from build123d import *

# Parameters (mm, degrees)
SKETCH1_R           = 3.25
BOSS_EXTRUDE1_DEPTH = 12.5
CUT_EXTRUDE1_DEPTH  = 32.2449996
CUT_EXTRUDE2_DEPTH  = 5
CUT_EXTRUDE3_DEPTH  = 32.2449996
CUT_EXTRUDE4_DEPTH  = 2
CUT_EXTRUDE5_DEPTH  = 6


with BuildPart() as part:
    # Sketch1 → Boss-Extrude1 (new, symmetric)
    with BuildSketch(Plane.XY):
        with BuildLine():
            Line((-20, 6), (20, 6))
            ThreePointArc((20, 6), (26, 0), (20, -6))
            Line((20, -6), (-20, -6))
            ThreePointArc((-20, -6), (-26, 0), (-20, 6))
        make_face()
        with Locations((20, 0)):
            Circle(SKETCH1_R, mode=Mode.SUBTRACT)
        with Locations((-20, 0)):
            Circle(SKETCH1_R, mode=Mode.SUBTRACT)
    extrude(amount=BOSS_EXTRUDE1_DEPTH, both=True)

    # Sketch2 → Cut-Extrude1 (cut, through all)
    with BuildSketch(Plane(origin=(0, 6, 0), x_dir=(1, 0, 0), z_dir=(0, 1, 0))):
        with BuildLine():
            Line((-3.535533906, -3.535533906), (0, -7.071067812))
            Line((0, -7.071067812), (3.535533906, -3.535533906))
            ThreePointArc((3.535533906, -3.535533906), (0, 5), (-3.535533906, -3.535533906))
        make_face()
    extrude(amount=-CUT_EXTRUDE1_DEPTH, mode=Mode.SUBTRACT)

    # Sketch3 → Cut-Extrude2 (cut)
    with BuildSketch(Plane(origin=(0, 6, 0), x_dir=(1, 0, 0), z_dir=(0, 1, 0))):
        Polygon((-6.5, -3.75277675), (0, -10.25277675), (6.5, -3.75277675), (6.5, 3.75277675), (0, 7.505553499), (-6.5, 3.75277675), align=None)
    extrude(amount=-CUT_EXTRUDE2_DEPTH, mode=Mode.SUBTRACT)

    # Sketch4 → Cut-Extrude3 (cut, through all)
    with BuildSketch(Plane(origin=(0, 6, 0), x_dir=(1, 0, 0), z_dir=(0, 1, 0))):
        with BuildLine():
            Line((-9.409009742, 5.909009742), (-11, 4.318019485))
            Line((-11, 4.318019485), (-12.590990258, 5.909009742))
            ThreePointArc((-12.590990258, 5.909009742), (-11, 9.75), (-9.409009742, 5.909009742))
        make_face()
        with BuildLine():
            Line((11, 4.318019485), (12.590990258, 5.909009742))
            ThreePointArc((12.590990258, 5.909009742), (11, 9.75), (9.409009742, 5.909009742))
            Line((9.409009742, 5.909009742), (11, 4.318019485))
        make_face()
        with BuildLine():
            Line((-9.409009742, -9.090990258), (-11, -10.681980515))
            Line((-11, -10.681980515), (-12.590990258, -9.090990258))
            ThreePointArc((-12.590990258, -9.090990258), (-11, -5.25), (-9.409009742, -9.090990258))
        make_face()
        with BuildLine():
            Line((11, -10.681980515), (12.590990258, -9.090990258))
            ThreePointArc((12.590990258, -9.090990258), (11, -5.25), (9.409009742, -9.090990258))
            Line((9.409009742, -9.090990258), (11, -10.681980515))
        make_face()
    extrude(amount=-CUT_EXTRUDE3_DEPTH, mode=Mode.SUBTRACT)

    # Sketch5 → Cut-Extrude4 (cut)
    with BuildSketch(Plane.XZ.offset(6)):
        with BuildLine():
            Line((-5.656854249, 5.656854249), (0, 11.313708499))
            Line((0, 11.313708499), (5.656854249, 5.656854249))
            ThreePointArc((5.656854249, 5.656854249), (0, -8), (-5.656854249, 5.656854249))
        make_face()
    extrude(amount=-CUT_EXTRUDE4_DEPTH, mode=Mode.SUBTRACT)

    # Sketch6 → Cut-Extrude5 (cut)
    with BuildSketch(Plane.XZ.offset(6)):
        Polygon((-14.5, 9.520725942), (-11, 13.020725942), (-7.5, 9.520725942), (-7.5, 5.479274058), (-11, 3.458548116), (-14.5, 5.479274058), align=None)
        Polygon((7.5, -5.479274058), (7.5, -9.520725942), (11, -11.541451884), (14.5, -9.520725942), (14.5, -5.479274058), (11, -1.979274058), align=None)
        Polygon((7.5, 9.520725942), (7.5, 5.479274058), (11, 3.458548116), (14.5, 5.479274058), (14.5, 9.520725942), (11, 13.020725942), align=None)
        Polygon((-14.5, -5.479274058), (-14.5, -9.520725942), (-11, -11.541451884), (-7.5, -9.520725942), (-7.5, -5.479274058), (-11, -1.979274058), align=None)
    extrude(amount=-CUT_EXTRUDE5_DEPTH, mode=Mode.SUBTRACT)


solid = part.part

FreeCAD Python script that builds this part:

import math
import FreeCAD as App
import Part
import Sketcher
from FreeCAD import Vector
Q = App.Units.Quantity

doc = App.newDocument("Part")
body = doc.addObject("PartDesign::Body", "Body")

# Sketch on XY plane
sketch1 = body.newObject("Sketcher::SketchObject", "Sketch")
sketch1.AttachmentSupport = (doc.getObject("XY_Plane"), [""])
sketch1.MapMode = "FlatFace"
sketch1.addGeometry(Part.LineSegment(Vector(20, 6, 0), Vector(-20, 6, 0)), False)
sketch1.addGeometry(Part.ArcOfCircle(Part.Circle(Vector(-20, 0, 0), Vector(0, 0, 1), 6), math.radians(90), math.radians(270)), False)
sketch1.addGeometry(Part.LineSegment(Vector(-20, -6, 0), Vector(20, -6, 0)), False)
sketch1.addGeometry(Part.ArcOfCircle(Part.Circle(Vector(20, 0, 0), Vector(0, 0, 1), 6), math.radians(-90), math.radians(90)), False)
sketch1.addGeometry(Part.Circle(Vector(20, 0, 0), Vector(0, 0, 1), 3.25), False)
sketch1.addGeometry(Part.Circle(Vector(-20, 0, 0), Vector(0, 0, 1), 3.25), False)
sketch1.addConstraint(Sketcher.Constraint("Tangent", 0, 2, 1, 1))
sketch1.addConstraint(Sketcher.Constraint("Tangent", 1, 2, 2, 1))
sketch1.addConstraint(Sketcher.Constraint("Tangent", 2, 2, 3, 1))
sketch1.addConstraint(Sketcher.Constraint("Tangent", 3, 2, 0, 1))
sketch1.addConstraint(Sketcher.Constraint("Horizontal", 0))
sketch1.addConstraint(Sketcher.Constraint("Horizontal", 2))
sketch1.addConstraint(Sketcher.Constraint("Coincident", 4, 3, 3, 3))
sketch1.addConstraint(Sketcher.Constraint("Coincident", 5, 3, 1, 3))
sketch1.addConstraint(Sketcher.Constraint("Equal", 4, 5))
sketch1.addConstraint(Sketcher.Constraint("Symmetric", 1, 3, 3, 3, -1, 1))
sketch1.addConstraint(Sketcher.Constraint("Radius", 1, 6.0))
sketch1.addConstraint(Sketcher.Constraint("Diameter", 4, 6.5))
sketch1.addConstraint(Sketcher.Constraint("DistanceX", 0, 2, 0, 1, 40.0))
pad1 = body.newObject("PartDesign::Pad", "Pad")
pad1.Profile = sketch1
pad1.Length = 25
pad1.Midplane = True

# Sketch on XZ plane
sketch2 = body.newObject("Sketcher::SketchObject", "Sketch001")
sketch2.AttachmentSupport = (doc.getObject("XZ_Plane"), [""])
sketch2.MapMode = "FlatFace"
sketch2.AttachmentOffset = App.Placement(Vector(0, 0, -6), App.Rotation())
sketch2.addGeometry(Part.LineSegment(Vector(-3.535534, 3.535534, 0), Vector(0, 7.071068, 0)), False)
sketch2.addGeometry(Part.LineSegment(Vector(0, 7.071068, 0), Vector(3.535534, 3.535534, 0)), False)
sketch2.addGeometry(Part.ArcOfCircle(Part.Circle(Vector(0, 0, 0), Vector(0, 0, 1), 5), math.radians(135), math.radians(405)), False)
sketch2.addConstraint(Sketcher.Constraint("Coincident", 0, 2, 1, 1))
sketch2.addConstraint(Sketcher.Constraint("Tangent", 1, 2, 2, 2))
sketch2.addConstraint(Sketcher.Constraint("Tangent", 2, 1, 0, 1))
sketch2.addConstraint(Sketcher.Constraint("Coincident", 2, 3, -1, 1))
sketch2.addConstraint(Sketcher.Constraint("PointOnObject", 0, 2, -2))
sketch2.addConstraint(Sketcher.Constraint("Perpendicular", 0, 1))
sketch2.addConstraint(Sketcher.Constraint("Radius", 2, 5.0))
pocket1 = body.newObject("PartDesign::Pocket", "Pocket")
pocket1.Profile = sketch2
pocket1.Type = "ThroughAll"
pocket1.Reversed = True

# Sketch on XZ plane
sketch3 = body.newObject("Sketcher::SketchObject", "Sketch002")
sketch3.AttachmentSupport = (doc.getObject("XZ_Plane"), [""])
sketch3.MapMode = "FlatFace"
sketch3.AttachmentOffset = App.Placement(Vector(0, 0, -6), App.Rotation())
sketch3.addGeometry(Part.LineSegment(Vector(-6.5, 3.752777, 0), Vector(0, 10.252777, 0)), False)
sketch3.addGeometry(Part.LineSegment(Vector(0, 10.252777, 0), Vector(6.5, 3.752777, 0)), False)
sketch3.addGeometry(Part.LineSegment(Vector(6.5, 3.752777, 0), Vector(6.5, -3.752777, 0)), False)
sketch3.addGeometry(Part.LineSegment(Vector(6.5, -3.752777, 0), Vector(0, -7.505553, 0)), False)
sketch3.addGeometry(Part.LineSegment(Vector(0, -7.505553, 0), Vector(-6.5, -3.752777, 0)), False)
sketch3.addGeometry(Part.LineSegment(Vector(-6.5, -3.752777, 0), Vector(-6.5, 3.752777, 0)), False)
sketch3.addConstraint(Sketcher.Constraint("Coincident", 0, 2, 1, 1))
sketch3.addConstraint(Sketcher.Constraint("Coincident", 1, 2, 2, 1))
sketch3.addConstraint(Sketcher.Constraint("Coincident", 2, 2, 3, 1))
sketch3.addConstraint(Sketcher.Constraint("Coincident", 3, 2, 4, 1))
sketch3.addConstraint(Sketcher.Constraint("Coincident", 4, 2, 5, 1))
sketch3.addConstraint(Sketcher.Constraint("Coincident", 5, 2, 0, 1))
sketch3.addConstraint(Sketcher.Constraint("Vertical", 2))
sketch3.addConstraint(Sketcher.Constraint("Vertical", 5))
sketch3.addConstraint(Sketcher.Constraint("Symmetric", 1, 2, 4, 2, -1, 1))
sketch3.addConstraint(Sketcher.Constraint("PointOnObject", 0, 2, -2))
sketch3.addConstraint(Sketcher.Constraint("PointOnObject", 3, 2, -2))
sketch3.addConstraint(Sketcher.Constraint("Perpendicular", 0, 1))
sketch3.addConstraint(Sketcher.Constraint("Horizontal", 2, 2, 4, 2))
sketch3.addConstraint(Sketcher.Constraint("Horizontal", 1, 2, 5, 2))
sketch3.addConstraint(Sketcher.Constraint("Angle", 3, Q("-150 deg")))
sketch3.addConstraint(Sketcher.Constraint("DistanceX", 4, 2, 2, 2, 13.0))
sketch3.addConstraint(Sketcher.Constraint("DistanceY", 2, 2, 2, 1, 7.505554))
pocket2 = body.newObject("PartDesign::Pocket", "Pocket001")
pocket2.Profile = sketch3
pocket2.Length = 5
pocket2.Reversed = True

# Sketch on XZ plane
sketch4 = body.newObject("Sketcher::SketchObject", "Sketch003")
sketch4.AttachmentSupport = (doc.getObject("XZ_Plane"), [""])
sketch4.MapMode = "FlatFace"
sketch4.AttachmentOffset = App.Placement(Vector(0, 0, -6), App.Rotation())
sketch4.addGeometry(Part.LineSegment(Vector(-11, -4.318019, 0), Vector(-9.40901, -5.90901, 0)), False)
sketch4.addGeometry(Part.ArcOfCircle(Part.Circle(Vector(-11, -7.5, 0), Vector(0, 0, 1), 2.25), math.radians(135), math.radians(405)), False)
sketch4.addGeometry(Part.LineSegment(Vector(-12.59099, -5.90901, 0), Vector(-11, -4.318019, 0)), False)
sketch4.addGeometry(Part.LineSegment(Vector(11, -4.318019, 0), Vector(12.59099, -5.90901, 0)), False)
sketch4.addGeometry(Part.ArcOfCircle(Part.Circle(Vector(11, -7.5, 0), Vector(0, 0, 1), 2.25), math.radians(135), math.radians(405)), False)
sketch4.addGeometry(Part.LineSegment(Vector(9.40901, -5.90901, 0), Vector(11, -4.318019, 0)), False)
sketch4.addGeometry(Part.LineSegment(Vector(-11, 10.681981, 0), Vector(-9.40901, 9.09099, 0)), False)
sketch4.addGeometry(Part.ArcOfCircle(Part.Circle(Vector(-11, 7.5, 0), Vector(0, 0, 1), 2.25), math.radians(135), math.radians(405)), False)
sketch4.addGeometry(Part.LineSegment(Vector(-12.59099, 9.09099, 0), Vector(-11, 10.681981, 0)), False)
sketch4.addGeometry(Part.LineSegment(Vector(11, 10.681981, 0), Vector(12.59099, 9.09099, 0)), False)
sketch4.addGeometry(Part.ArcOfCircle(Part.Circle(Vector(11, 7.5, 0), Vector(0, 0, 1), 2.25), math.radians(135), math.radians(405)), False)
sketch4.addGeometry(Part.LineSegment(Vector(9.40901, 9.09099, 0), Vector(11, 10.681981, 0)), False)
sketch4.addConstraint(Sketcher.Constraint("Tangent", 0, 2, 1, 2))
sketch4.addConstraint(Sketcher.Constraint("Tangent", 1, 1, 2, 1))
sketch4.addConstraint(Sketcher.Constraint("Coincident", 2, 2, 0, 1))
sketch4.addConstraint(Sketcher.Constraint("Tangent", 3, 2, 4, 2))
sketch4.addConstraint(Sketcher.Constraint("Tangent", 4, 1, 5, 1))
sketch4.addConstraint(Sketcher.Constraint("Coincident", 5, 2, 3, 1))
sketch4.addConstraint(Sketcher.Constraint("Tangent", 6, 2, 7, 2))
sketch4.addConstraint(Sketcher.Constraint("Tangent", 7, 1, 8, 1))
sketch4.addConstraint(Sketcher.Constraint("Coincident", 8, 2, 6, 1))
sketch4.addConstraint(Sketcher.Constraint("Tangent", 9, 2, 10, 2))
sketch4.addConstraint(Sketcher.Constraint("Tangent", 10, 1, 11, 1))
sketch4.addConstraint(Sketcher.Constraint("Coincident", 11, 2, 9, 1))
sketch4.addConstraint(Sketcher.Constraint("Equal", 1, 4))
sketch4.addConstraint(Sketcher.Constraint("Equal", 4, 7))
sketch4.addConstraint(Sketcher.Constraint("Equal", 7, 10))
sketch4.addConstraint(Sketcher.Constraint("Symmetric", 4, 3, 7, 3, -1, 1))
sketch4.addConstraint(Sketcher.Constraint("Symmetric", 1, 3, 10, 3, -1, 1))
sketch4.addConstraint(Sketcher.Constraint("Symmetric", 1, 3, 4, 3, -2))
sketch4.addConstraint(Sketcher.Constraint("Symmetric", 2, 2, 5, 2, -2))
sketch4.addConstraint(Sketcher.Constraint("Symmetric", 8, 2, 11, 2, -2))
sketch4.addConstraint(Sketcher.Constraint("Perpendicular", 0, 2))
sketch4.addConstraint(Sketcher.Constraint("Perpendicular", 2, 3))
sketch4.addConstraint(Sketcher.Constraint("Perpendicular", 5, 6))
sketch4.addConstraint(Sketcher.Constraint("Perpendicular", 6, 8))
sketch4.addConstraint(Sketcher.Constraint("Radius", 1, 2.25))
sketch4.addConstraint(Sketcher.Constraint("DistanceX", 1, 3, -1, 1, 11.0))
sketch4.addConstraint(Sketcher.Constraint("DistanceY", 1, 3, 7, 3, 15.0))
pocket3 = body.newObject("PartDesign::Pocket", "Pocket002")
pocket3.Profile = sketch4
pocket3.Type = "ThroughAll"
pocket3.Reversed = True

# Sketch on XZ plane
sketch5 = body.newObject("Sketcher::SketchObject", "Sketch004")
sketch5.AttachmentSupport = (doc.getObject("XZ_Plane"), [""])
sketch5.MapMode = "FlatFace"
sketch5.AttachmentOffset = App.Placement(Vector(0, 0, 6), App.Rotation())
sketch5.addGeometry(Part.LineSegment(Vector(0, 11.313708, 0), Vector(-5.656854, 5.656854, 0)), False)
sketch5.addGeometry(Part.ArcOfCircle(Part.Circle(Vector(0, 0, 0), Vector(0, 0, 1), 8), math.radians(135), math.radians(405)), False)
sketch5.addGeometry(Part.LineSegment(Vector(5.656854, 5.656854, 0), Vector(0, 11.313708, 0)), False)
sketch5.addConstraint(Sketcher.Constraint("Tangent", 0, 2, 1, 1))
sketch5.addConstraint(Sketcher.Constraint("Tangent", 1, 2, 2, 1))
sketch5.addConstraint(Sketcher.Constraint("Coincident", 2, 2, 0, 1))
sketch5.addConstraint(Sketcher.Constraint("Coincident", 1, 3, -1, 1))
sketch5.addConstraint(Sketcher.Constraint("PointOnObject", 2, 2, -2))
sketch5.addConstraint(Sketcher.Constraint("Perpendicular", 0, 2))
sketch5.addConstraint(Sketcher.Constraint("Radius", 1, 8.0))
pocket4 = body.newObject("PartDesign::Pocket", "Pocket003")
pocket4.Profile = sketch5
pocket4.Length = 2

# Sketch on XZ plane
sketch6 = body.newObject("Sketcher::SketchObject", "Sketch005")
sketch6.AttachmentSupport = (doc.getObject("XZ_Plane"), [""])
sketch6.MapMode = "FlatFace"
sketch6.AttachmentOffset = App.Placement(Vector(0, 0, 6), App.Rotation())
sketch6.addGeometry(Part.LineSegment(Vector(-11, 13.020726, 0), Vector(-14.5, 9.520726, 0)), False)
sketch6.addGeometry(Part.LineSegment(Vector(-14.5, 9.520726, 0), Vector(-14.5, 5.479274, 0)), False)
sketch6.addGeometry(Part.LineSegment(Vector(-14.5, 5.479274, 0), Vector(-11, 3.458548, 0)), False)
sketch6.addGeometry(Part.LineSegment(Vector(-11, 3.458548, 0), Vector(-7.5, 5.479274, 0)), False)
sketch6.addGeometry(Part.LineSegment(Vector(-7.5, 5.479274, 0), Vector(-7.5, 9.520726, 0)), False)
sketch6.addGeometry(Part.LineSegment(Vector(-7.5, 9.520726, 0), Vector(-11, 13.020726, 0)), False)
sketch6.addGeometry(Part.LineSegment(Vector(7.5, -5.479274, 0), Vector(7.5, -9.520726, 0)), False)
sketch6.addGeometry(Part.LineSegment(Vector(7.5, -9.520726, 0), Vector(11, -11.541452, 0)), False)
sketch6.addGeometry(Part.LineSegment(Vector(11, -11.541452, 0), Vector(14.5, -9.520726, 0)), False)
sketch6.addGeometry(Part.LineSegment(Vector(14.5, -9.520726, 0), Vector(14.5, -5.479274, 0)), False)
sketch6.addGeometry(Part.LineSegment(Vector(14.5, -5.479274, 0), Vector(11, -1.979274, 0)), False)
sketch6.addGeometry(Part.LineSegment(Vector(11, -1.979274, 0), Vector(7.5, -5.479274, 0)), False)
sketch6.addGeometry(Part.LineSegment(Vector(7.5, 9.520726, 0), Vector(7.5, 5.479274, 0)), False)
sketch6.addGeometry(Part.LineSegment(Vector(7.5, 5.479274, 0), Vector(11, 3.458548, 0)), False)
sketch6.addGeometry(Part.LineSegment(Vector(11, 3.458548, 0), Vector(14.5, 5.479274, 0)), False)
sketch6.addGeometry(Part.LineSegment(Vector(14.5, 5.479274, 0), Vector(14.5, 9.520726, 0)), False)
sketch6.addGeometry(Part.LineSegment(Vector(14.5, 9.520726, 0), Vector(11, 13.020726, 0)), False)
sketch6.addGeometry(Part.LineSegment(Vector(11, 13.020726, 0), Vector(7.5, 9.520726, 0)), False)
sketch6.addGeometry(Part.LineSegment(Vector(-14.5, -5.479274, 0), Vector(-14.5, -9.520726, 0)), False)
sketch6.addGeometry(Part.LineSegment(Vector(-14.5, -9.520726, 0), Vector(-11, -11.541452, 0)), False)
sketch6.addGeometry(Part.LineSegment(Vector(-11, -11.541452, 0), Vector(-7.5, -9.520726, 0)), False)
sketch6.addGeometry(Part.LineSegment(Vector(-7.5, -9.520726, 0), Vector(-7.5, -5.479274, 0)), False)
sketch6.addGeometry(Part.LineSegment(Vector(-7.5, -5.479274, 0), Vector(-11, -1.979274, 0)), False)
sketch6.addGeometry(Part.LineSegment(Vector(-11, -1.979274, 0), Vector(-14.5, -5.479274, 0)), False)
sketch6.addConstraint(Sketcher.Constraint("Coincident", 0, 2, 1, 1))
sketch6.addConstraint(Sketcher.Constraint("Coincident", 1, 2, 2, 1))
sketch6.addConstraint(Sketcher.Constraint("Coincident", 2, 2, 3, 1))
sketch6.addConstraint(Sketcher.Constraint("Coincident", 3, 2, 4, 1))
sketch6.addConstraint(Sketcher.Constraint("Coincident", 4, 2, 5, 1))
sketch6.addConstraint(Sketcher.Constraint("Coincident", 5, 2, 0, 1))
sketch6.addConstraint(Sketcher.Constraint("Coincident", 6, 2, 7, 1))
sketch6.addConstraint(Sketcher.Constraint("Coincident", 7, 2, 8, 1))
sketch6.addConstraint(Sketcher.Constraint("Coincident", 8, 2, 9, 1))
sketch6.addConstraint(Sketcher.Constraint("Coincident", 9, 2, 10, 1))
sketch6.addConstraint(Sketcher.Constraint("Coincident", 10, 2, 11, 1))
sketch6.addConstraint(Sketcher.Constraint("Coincident", 11, 2, 6, 1))
sketch6.addConstraint(Sketcher.Constraint("Coincident", 12, 2, 13, 1))
sketch6.addConstraint(Sketcher.Constraint("Coincident", 13, 2, 14, 1))
sketch6.addConstraint(Sketcher.Constraint("Coincident", 14, 2, 15, 1))
sketch6.addConstraint(Sketcher.Constraint("Coincident", 15, 2, 16, 1))
sketch6.addConstraint(Sketcher.Constraint("Coincident", 16, 2, 17, 1))
sketch6.addConstraint(Sketcher.Constraint("Coincident", 17, 2, 12, 1))
sketch6.addConstraint(Sketcher.Constraint("Coincident", 18, 2, 19, 1))
sketch6.addConstraint(Sketcher.Constraint("Coincident", 19, 2, 20, 1))
sketch6.addConstraint(Sketcher.Constraint("Coincident", 20, 2, 21, 1))
sketch6.addConstraint(Sketcher.Constraint("Coincident", 21, 2, 22, 1))
sketch6.addConstraint(Sketcher.Constraint("Coincident", 22, 2, 23, 1))
sketch6.addConstraint(Sketcher.Constraint("Coincident", 23, 2, 18, 1))
sketch6.addConstraint(Sketcher.Constraint("Vertical", 1))
sketch6.addConstraint(Sketcher.Constraint("Vertical", 4))
sketch6.addConstraint(Sketcher.Constraint("Vertical", 6))
sketch6.addConstraint(Sketcher.Constraint("Vertical", 9))
sketch6.addConstraint(Sketcher.Constraint("Vertical", 12))
sketch6.addConstraint(Sketcher.Constraint("Vertical", 15))
sketch6.addConstraint(Sketcher.Constraint("Vertical", 18))
sketch6.addConstraint(Sketcher.Constraint("Vertical", 21))
sketch6.addConstraint(Sketcher.Constraint("Symmetric", 4, 2, 6, 2, -1, 1))
sketch6.addConstraint(Sketcher.Constraint("Symmetric", 0, 2, 8, 2, -1, 1))
sketch6.addConstraint(Sketcher.Constraint("Symmetric", 15, 2, 18, 2, -1, 1))
sketch6.addConstraint(Sketcher.Constraint("Symmetric", 17, 2, 20, 2, -1, 1))
sketch6.addConstraint(Sketcher.Constraint("Symmetric", 3, 2, 12, 2, -2))
sketch6.addConstraint(Sketcher.Constraint("Symmetric", 2, 2, 13, 2, -2))
sketch6.addConstraint(Sketcher.Constraint("Symmetric", 1, 2, 14, 2, -2))
sketch6.addConstraint(Sketcher.Constraint("Symmetric", 5, 2, 16, 2, -2))
sketch6.addConstraint(Sketcher.Constraint("Symmetric", 7, 2, 19, 2, -2))
sketch6.addConstraint(Sketcher.Constraint("Symmetric", 10, 2, 22, 2, -2))
sketch6.addConstraint(Sketcher.Constraint("Perpendicular", 0, 5))
sketch6.addConstraint(Sketcher.Constraint("Parallel", 2, 7))
sketch6.addConstraint(Sketcher.Constraint("Parallel", 3, 8))
sketch6.addConstraint(Sketcher.Constraint("Parallel", 5, 10))
sketch6.addConstraint(Sketcher.Constraint("Perpendicular", 10, 11))
sketch6.addConstraint(Sketcher.Constraint("Parallel", 7, 13))
sketch6.addConstraint(Sketcher.Constraint("Perpendicular", 11, 16))
sketch6.addConstraint(Sketcher.Constraint("Perpendicular", 16, 17))
sketch6.addConstraint(Sketcher.Constraint("Parallel", 13, 19))
sketch6.addConstraint(Sketcher.Constraint("Perpendicular", 17, 22))
sketch6.addConstraint(Sketcher.Constraint("Perpendicular", 22, 23))
sketch6.addConstraint(Sketcher.Constraint("Horizontal", 1, 2, 3, 2))
sketch6.addConstraint(Sketcher.Constraint("Horizontal", 0, 2, 4, 2))
sketch6.addConstraint(Sketcher.Constraint("Horizontal", 9, 2, 11, 2))
sketch6.addConstraint(Sketcher.Constraint("Equal", 4, 6))
sketch6.addConstraint(Sketcher.Constraint("Angle", 2, Q("-30 deg")))
sketch6.addConstraint(Sketcher.Constraint("DistanceX", 2, 2, -1, 1, 11.0))
sketch6.addConstraint(Sketcher.Constraint("DistanceX", 1, 2, 3, 2, 7.0))
sketch6.addConstraint(Sketcher.Constraint("DistanceY", 6, 2, 3, 2, 15.0))
sketch6.addConstraint(Sketcher.Constraint("DistanceY", 1, 2, 1, 1, 4.041452))
pocket5 = body.newObject("PartDesign::Pocket", "Pocket004")
pocket5.Profile = sketch6
pocket5.Length = 6

doc.recompute()
